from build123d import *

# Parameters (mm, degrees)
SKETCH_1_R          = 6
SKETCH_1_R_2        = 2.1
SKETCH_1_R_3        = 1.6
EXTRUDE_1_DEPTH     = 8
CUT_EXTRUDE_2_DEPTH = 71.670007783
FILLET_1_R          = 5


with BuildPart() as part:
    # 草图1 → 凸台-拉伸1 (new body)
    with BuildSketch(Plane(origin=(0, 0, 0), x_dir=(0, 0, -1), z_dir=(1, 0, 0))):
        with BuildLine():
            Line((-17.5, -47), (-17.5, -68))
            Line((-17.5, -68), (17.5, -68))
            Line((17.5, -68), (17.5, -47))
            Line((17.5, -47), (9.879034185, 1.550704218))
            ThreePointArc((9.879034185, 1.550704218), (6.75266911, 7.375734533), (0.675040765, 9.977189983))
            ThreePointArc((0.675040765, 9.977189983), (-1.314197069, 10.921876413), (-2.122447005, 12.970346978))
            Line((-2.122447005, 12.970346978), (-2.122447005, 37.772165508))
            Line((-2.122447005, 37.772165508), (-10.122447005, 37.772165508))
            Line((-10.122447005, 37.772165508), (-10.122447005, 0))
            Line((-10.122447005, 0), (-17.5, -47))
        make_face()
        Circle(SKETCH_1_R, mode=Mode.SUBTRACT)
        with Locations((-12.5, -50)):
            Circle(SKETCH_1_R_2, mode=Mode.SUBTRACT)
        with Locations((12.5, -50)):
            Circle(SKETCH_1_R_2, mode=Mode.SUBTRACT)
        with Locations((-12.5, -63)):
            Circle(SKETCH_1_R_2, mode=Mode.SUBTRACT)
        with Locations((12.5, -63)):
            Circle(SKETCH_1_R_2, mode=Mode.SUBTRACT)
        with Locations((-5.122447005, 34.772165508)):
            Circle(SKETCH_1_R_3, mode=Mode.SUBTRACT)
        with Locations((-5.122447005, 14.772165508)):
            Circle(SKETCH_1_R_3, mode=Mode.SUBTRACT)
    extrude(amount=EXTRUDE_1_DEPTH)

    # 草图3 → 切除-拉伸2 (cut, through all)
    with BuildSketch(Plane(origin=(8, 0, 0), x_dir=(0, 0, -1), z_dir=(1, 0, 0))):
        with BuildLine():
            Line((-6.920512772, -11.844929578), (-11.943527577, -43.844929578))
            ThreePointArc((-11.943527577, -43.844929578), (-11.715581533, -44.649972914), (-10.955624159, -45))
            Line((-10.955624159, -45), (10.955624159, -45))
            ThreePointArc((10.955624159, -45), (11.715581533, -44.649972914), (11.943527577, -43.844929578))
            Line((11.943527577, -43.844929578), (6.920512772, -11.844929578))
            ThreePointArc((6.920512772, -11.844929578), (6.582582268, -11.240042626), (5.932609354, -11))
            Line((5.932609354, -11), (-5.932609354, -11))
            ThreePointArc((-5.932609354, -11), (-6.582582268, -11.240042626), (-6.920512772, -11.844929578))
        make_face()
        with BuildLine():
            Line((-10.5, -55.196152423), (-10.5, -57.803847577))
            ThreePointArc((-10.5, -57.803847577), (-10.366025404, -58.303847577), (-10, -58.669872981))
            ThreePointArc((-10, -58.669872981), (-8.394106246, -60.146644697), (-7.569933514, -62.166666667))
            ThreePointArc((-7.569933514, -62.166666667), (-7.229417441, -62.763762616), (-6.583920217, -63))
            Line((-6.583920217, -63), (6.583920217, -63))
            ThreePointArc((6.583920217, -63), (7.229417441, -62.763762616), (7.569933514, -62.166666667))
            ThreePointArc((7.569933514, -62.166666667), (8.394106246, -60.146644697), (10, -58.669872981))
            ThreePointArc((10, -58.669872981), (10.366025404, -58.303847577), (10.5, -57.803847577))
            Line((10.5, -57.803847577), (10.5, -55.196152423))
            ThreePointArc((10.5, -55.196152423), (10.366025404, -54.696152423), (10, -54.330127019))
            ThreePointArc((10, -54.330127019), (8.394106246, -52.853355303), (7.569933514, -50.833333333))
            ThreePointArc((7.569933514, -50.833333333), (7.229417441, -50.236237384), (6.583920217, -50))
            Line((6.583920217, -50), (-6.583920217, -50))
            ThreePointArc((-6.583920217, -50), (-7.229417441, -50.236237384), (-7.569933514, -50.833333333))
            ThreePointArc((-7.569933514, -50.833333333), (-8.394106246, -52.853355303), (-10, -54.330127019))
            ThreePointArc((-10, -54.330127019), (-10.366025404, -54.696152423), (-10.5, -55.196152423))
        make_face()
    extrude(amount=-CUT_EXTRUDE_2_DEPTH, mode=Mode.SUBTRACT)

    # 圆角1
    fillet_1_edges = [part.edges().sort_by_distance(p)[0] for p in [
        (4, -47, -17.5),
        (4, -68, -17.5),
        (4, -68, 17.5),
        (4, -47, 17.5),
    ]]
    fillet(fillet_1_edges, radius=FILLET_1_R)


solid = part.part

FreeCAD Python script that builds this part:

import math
import FreeCAD as App
import Part
import Sketcher

V = App.Vector
Q = App.Units.Quantity


def edges_at(feature, points):
    """Names of the edges that pass closest to the given points."""
    edges = feature.Shape.Edges
    near = lambda p: min(range(len(edges)), key=lambda i: edges[i].distToShape(Part.Vertex(*p))[0])
    return sorted({f"Edge{near(p) + 1}" for p in points})

doc = App.newDocument("Part")
body = doc.addObject("PartDesign::Body", "Body")

# Sketch on YZ plane
sketch1 = body.newObject("Sketcher::SketchObject", "Sketch")
sketch1.AttachmentSupport = (doc.getObject("YZ_Plane"), [""])
sketch1.MapMode = "FlatFace"
sketch1.addGeometry([
    Part.LineSegment(V(-47, 17.5, 0), V(-68, 17.5, 0)),  # 0
    Part.LineSegment(V(-68, 17.5, 0), V(-68, -17.5, 0)),  # 1
    Part.LineSegment(V(-68, -17.5, 0), V(-47, -17.5, 0)),  # 2
    Part.LineSegment(V(-47, -17.5, 0), V(1.6, -9.9, 0)),  # 3
    Part.ArcOfCircle(Part.Circle(V(0, 0, 0), V(0, 0, 1), 10), math.radians(-81), math.radians(-4)),  # 4
    Part.ArcOfCircle(Part.Circle(V(13, -0.9, 0), V(0, 0, 1), 3), math.radians(90), math.radians(176)),  # 5
    Part.LineSegment(V(13, 2.1, 0), V(37.8, 2.1, 0)),  # 6
    Part.LineSegment(V(37.8, 2.1, 0), V(37.8, 10.1, 0)),  # 7
    Part.LineSegment(V(37.8, 10.1, 0), V(0, 10.1, 0)),  # 8
    Part.LineSegment(V(0, 10.1, 0), V(-47, 17.5, 0)),  # 9
    Part.Circle(V(-63, 12.5, 0), V(0, 0, 1), 2.1),  # 10
    Part.Circle(V(-50, 12.5, 0), V(0, 0, 1), 2.1),  # 11
    Part.Circle(V(-63, -12.5, 0), V(0, 0, 1), 2.1),  # 12
    Part.Circle(V(-50, -12.5, 0), V(0, 0, 1), 2.1),  # 13
    Part.Circle(V(14.8, 5.1, 0), V(0, 0, 1), 1.6),  # 14
    Part.Circle(V(34.8, 5.1, 0), V(0, 0, 1), 1.6),  # 15
    Part.Circle(V(0, 0, 0), V(0, 0, 1), 6),  # 16
], False)
sketch1.addConstraint([
    Sketcher.Constraint("Coincident", 0, 2, 1, 1),
    Sketcher.Constraint("Coincident", 1, 2, 2, 1),
    Sketcher.Constraint("Coincident", 2, 2, 3, 1),
    Sketcher.Constraint("Tangent", 3, 2, 4, 1),
    Sketcher.Constraint("Tangent", 4, 2, 5, 2),
    Sketcher.Constraint("Tangent", 5, 1, 6, 1),
    Sketcher.Constraint("Coincident", 6, 2, 7, 1),
    Sketcher.Constraint("Coincident", 7, 2, 8, 1),
    Sketcher.Constraint("Coincident", 8, 2, 9, 1),
    Sketcher.Constraint("Coincident", 9, 2, 0, 1),
    Sketcher.Constraint("Horizontal", 0),
    Sketcher.Constraint("Vertical", 1),
    Sketcher.Constraint("Horizontal", 2),
    Sketcher.Constraint("Horizontal", 6),
    Sketcher.Constraint("Vertical", 7),
    Sketcher.Constraint("Horizontal", 8),
    Sketcher.Constraint("Coincident", 4, 3, -1, 1),
    Sketcher.Constraint("Coincident", 16, 3, -1, 1),
    Sketcher.Constraint("Equal", 10, 11),
    Sketcher.Constraint("Equal", 11, 12),
    Sketcher.Constraint("Equal", 12, 13),
    Sketcher.Constraint("Equal", 14, 15),
    Sketcher.Constraint("Symmetric", 10, 3, 12, 3, -1),
    Sketcher.Constraint("Symmetric", 11, 3, 13, 3, -1),
    Sketcher.Constraint("Symmetric", 2, 2, 9, 2, -1),
    Sketcher.Constraint("PointOnObject", 8, 2, -2),
    Sketcher.Constraint("Horizontal", 10, 3, 11, 3),
    Sketcher.Constraint("Horizontal", 14, 3, 15, 3),
    Sketcher.Constraint("Diameter", 16, Q("12 mm")),
    Sketcher.Constraint("Radius", 4, Q("10 mm")),
    Sketcher.Constraint("Radius", 5, Q("3 mm")),
    Sketcher.Constraint("Diameter", 10, Q("4.2 mm")),
    Sketcher.Constraint("Diameter", 14, Q("3.2 mm")),
    Sketcher.Constraint("DistanceX", 0, 2, 0, 1, Q("21 mm")),
    Sketcher.Constraint("DistanceY", 1, 2, 1, 1, Q("35 mm")),
    Sketcher.Constraint("DistanceY", 7, 1, 7, 2, Q("8 mm")),
    Sketcher.Constraint("DistanceX", 10, 3, -1, 1, Q("63 mm")),
    Sketcher.Constraint("DistanceX", 11, 3, -1, 1, Q("50 mm")),
    Sketcher.Constraint("DistanceX", 0, 2, -1, 1, Q("68 mm")),
    Sketcher.Constraint("DistanceY", 12, 3, 10, 3, Q("25 mm")),
    Sketcher.Constraint("DistanceY", 5, 3, 14, 3, Q("6 mm")),
    Sketcher.Constraint("DistanceX", 14, 3, 15, 3, Q("20 mm")),
    Sketcher.Constraint("DistanceX", 15, 3, 6, 2, Q("3 mm")),
    Sketcher.Constraint("Distance", 9, Q("47.575501 mm")),
    Sketcher.Constraint("DistanceX", 6, 1, 6, 2, Q("24.801819 mm")),
])
pad1 = body.newObject("PartDesign::Pad", "Pad")
pad1.Profile = sketch1
pad1.Length = 8

# Sketch on YZ plane
sketch2 = body.newObject("Sketcher::SketchObject", "Sketch001")
sketch2.AttachmentSupport = (doc.getObject("YZ_Plane"), [""])
sketch2.MapMode = "FlatFace"
sketch2.AttachmentOffset = App.Placement(V(0, 0, 8), App.Rotation())
sketch2.addGeometry([
    Part.LineSegment(V(-11.8, 6.9, 0), V(-43.8, 11.9, 0)),  # 0
    Part.ArcOfCircle(Part.Circle(V(-44, 11, 0), V(0, 0, 1), 1), math.radians(81), math.radians(180)),  # 1
    Part.LineSegment(V(-45, 11, 0), V(-45, -11, 0)),  # 2
    Part.ArcOfCircle(Part.Circle(V(-44, -11, 0), V(0, 0, 1), 1), math.radians(-180), math.radians(-81)),  # 3
    Part.LineSegment(V(-43.8, -11.9, 0), V(-11.8, -6.9, 0)),  # 4
    Part.ArcOfCircle(Part.Circle(V(-12, -5.9, 0), V(0, 0, 1), 1), math.radians(-81), math.radians(0)),  # 5
    Part.LineSegment(V(-11, -5.9, 0), V(-11, 5.9, 0)),  # 6
    Part.ArcOfCircle(Part.Circle(V(-12, 5.9, 0), V(0, 0, 1), 1), math.radians(0), math.radians(81)),  # 7
    Part.LineSegment(V(-55.2, 10.5, 0), V(-57.8, 10.5, 0)),  # 8
    Part.ArcOfCircle(Part.Circle(V(-57.8, 9.5, 0), V(0, 0, 1), 1), math.radians(90), math.radians(150)),  # 9
    Part.ArcOfCircle(Part.Circle(V(-63, 12.5, 0), V(0, 0, 1), 5), math.radians(-80), math.radians(-30)),  # 10
    Part.ArcOfCircle(Part.Circle(V(-62, 6.6, 0), V(0, 0, 1), 1), math.radians(100), math.radians(180)),  # 11
    Part.LineSegment(V(-63, 6.6, 0), V(-63, -6.6, 0)),  # 12
    Part.ArcOfCircle(Part.Circle(V(-62, -6.6, 0), V(0, 0, 1), 1), math.radians(180), math.radians(260)),  # 13
    Part.ArcOfCircle(Part.Circle(V(-63, -12.5, 0), V(0, 0, 1), 5), math.radians(30), math.radians(80)),  # 14
    Part.ArcOfCircle(Part.Circle(V(-57.8, -9.5, 0), V(0, 0, 1), 1), math.radians(-150), math.radians(-90)),  # 15
    Part.LineSegment(V(-57.8, -10.5, 0), V(-55.2, -10.5, 0)),  # 16
    Part.ArcOfCircle(Part.Circle(V(-55.2, -9.5, 0), V(0, 0, 1), 1), math.radians(-90), math.radians(-30)),  # 17
    Part.ArcOfCircle(Part.Circle(V(-50, -12.5, 0), V(0, 0, 1), 5), math.radians(100), math.radians(150)),  # 18
    Part.ArcOfCircle(Part.Circle(V(-51, -6.6, 0), V(0, 0, 1), 1), math.radians(-80), math.radians(0)),  # 19
    Part.LineSegment(V(-50, -6.6, 0), V(-50, 6.6, 0)),  # 20
    Part.ArcOfCircle(Part.Circle(V(-51, 6.6, 0), V(0, 0, 1), 1), math.radians(0), math.radians(80)),  # 21
    Part.ArcOfCircle(Part.Circle(V(-50, 12.5, 0), V(0, 0, 1), 5), math.radians(-150), math.radians(-100)),  # 22
    Part.ArcOfCircle(Part.Circle(V(-55.2, 9.5, 0), V(0, 0, 1), 1), math.radians(30), math.radians(90)),  # 23
], False)
sketch2.addConstraint([
    Sketcher.Constraint("Tangent", 0, 2, 1, 1),
    Sketcher.Constraint("Tangent", 1, 2, 2, 1),
    Sketcher.Constraint("Tangent", 2, 2, 3, 1),
    Sketcher.Constraint("Tangent", 3, 2, 4, 1),
    Sketcher.Constraint("Tangent", 4, 2, 5, 1),
    Sketcher.Constraint("Tangent", 5, 2, 6, 1),
    Sketcher.Constraint("Tangent", 6, 2, 7, 1),
    Sketcher.Constraint("Tangent", 7, 2, 0, 1),
    Sketcher.Constraint("Tangent", 8, 2, 9, 1),
    Sketcher.Constraint("Tangent", 9, 2, 10, 2),
    Sketcher.Constraint("Tangent", 10, 1, 11, 1),
    Sketcher.Constraint("Tangent", 11, 2, 12, 1),
    Sketcher.Constraint("Tangent", 12, 2, 13, 1),
    Sketcher.Constraint("Tangent", 13, 2, 14, 2),
    Sketcher.Constraint("Tangent", 14, 1, 15, 1),
    Sketcher.Constraint("Tangent", 15, 2, 16, 1),
    Sketcher.Constraint("Tangent", 16, 2, 17, 1),
    Sketcher.Constraint("Tangent", 17, 2, 18, 2),
    Sketcher.Constraint("Tangent", 18, 1, 19, 1),
    Sketcher.Constraint("Tangent", 19, 2, 20, 1),
    Sketcher.Constraint("Tangent", 20, 2, 21, 1),
    Sketcher.Constraint("Tangent", 21, 2, 22, 2),
    Sketcher.Constraint("Tangent", 22, 1, 23, 1),
    Sketcher.Constraint("Tangent", 23, 2, 8, 1),
    Sketcher.Constraint("Vertical", 2),
    Sketcher.Constraint("Vertical", 6),
    Sketcher.Constraint("Horizontal", 8),
    Sketcher.Constraint("Vertical", 12),
    Sketcher.Constraint("Horizontal", 16),
    Sketcher.Constraint("Vertical", 20),
    Sketcher.Constraint("Equal", 1, 3),
    Sketcher.Constraint("Equal", 3, 5),
    Sketcher.Constraint("Equal", 5, 7),
    Sketcher.Constraint("Equal", 7, 9),
    Sketcher.Constraint("Equal", 9, 11),
    Sketcher.Constraint("Equal", 11, 13),
    Sketcher.Constraint("Equal", 10, 14),
    Sketcher.Constraint("Equal", 13, 15),
    Sketcher.Constraint("Equal", 15, 17),
    Sketcher.Constraint("Equal", 14, 18),
    Sketcher.Constraint("Equal", 17, 19),
    Sketcher.Constraint("Equal", 19, 21),
    Sketcher.Constraint("Equal", 18, 22),
    Sketcher.Constraint("Equal", 21, 23),
    Sketcher.Constraint("Symmetric", 10, 3, 14, 3, -1),
    Sketcher.Constraint("Symmetric", 18, 3, 22, 3, -1),
    Sketcher.Constraint("Symmetric", 0, 2, 3, 2, -1),
    Sketcher.Constraint("Horizontal", 14, 3, 18, 3),
    Sketcher.Constraint("Horizontal", 13, 3, 19, 3),
    Sketcher.Constraint("Vertical", 9, 3, 15, 3),
    Sketcher.Constraint("Vertical", 14, 3, 11, 2),
    Sketcher.Constraint("Radius", 1, Q("1 mm")),
    Sketcher.Constraint("Radius", 10, Q("5 mm")),
    Sketcher.Constraint("DistanceX", 1, 3, -1, 1, Q("44 mm")),
    Sketcher.Constraint("DistanceX", 5, 3, -1, 1, Q("12 mm")),
    Sketcher.Constraint("DistanceX", 10, 3, -1, 1, Q("63 mm")),
    Sketcher.Constraint("DistanceX", 18, 3, -1, 1, Q("50 mm")),
    Sketcher.Constraint("DistanceY", -1, 1, 9, 2, Q("10 mm")),
    Sketcher.Constraint("DistanceY", 9, 3, 10, 3, Q("3 mm")),
    Sketcher.Constraint("DistanceY", 2, 2, 2, 1, Q("21.911248 mm")),
    Sketcher.Constraint("DistanceY", 6, 1, 6, 2, Q("11.865219 mm")),
])
pocket1 = body.newObject("PartDesign::Pocket", "Pocket")
pocket1.Profile = sketch2
pocket1.Type = "ThroughAll"
doc.recompute()

fillet = body.newObject("PartDesign::Fillet", "Fillet")
fillet.Base = (pocket1, edges_at(pocket1, [
    (4, -47, -17.5),
    (4, -68, -17.5),
    (4, -68, 17.5),
    (4, -47, 17.5),
]))
fillet.Radius = 5

doc.recompute()
